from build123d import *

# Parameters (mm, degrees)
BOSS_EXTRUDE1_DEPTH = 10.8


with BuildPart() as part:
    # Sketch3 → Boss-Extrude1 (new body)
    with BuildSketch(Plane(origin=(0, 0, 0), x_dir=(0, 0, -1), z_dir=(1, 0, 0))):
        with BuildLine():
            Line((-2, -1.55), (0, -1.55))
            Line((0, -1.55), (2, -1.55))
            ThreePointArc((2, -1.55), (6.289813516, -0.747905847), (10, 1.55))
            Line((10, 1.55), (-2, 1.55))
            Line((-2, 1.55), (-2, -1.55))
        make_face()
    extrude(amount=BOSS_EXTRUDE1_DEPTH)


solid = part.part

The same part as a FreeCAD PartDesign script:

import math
import FreeCAD as App
import Part
import Sketcher

V = App.Vector

doc = App.newDocument("Part")
body = doc.addObject("PartDesign::Body", "Body")

# Sketch on YZ plane
sketch1 = body.newObject("Sketcher::SketchObject", "Sketch")
sketch1.AttachmentSupport = (doc.getObject("YZ_Plane"), [""])
sketch1.MapMode = "FlatFace"
sketch1.addGeometry(Part.LineSegment(V(-1.6, 2, 0), V(-1.6, -2, 0)), False)
sketch1.addGeometry(Part.ArcOfCircle(Part.Circle(V(10.3, -2, 0), V(0, 0, 1), 11.9), math.radians(180), math.radians(222)), False)
sketch1.addGeometry(Part.LineSegment(V(1.6, -10, 0), V(1.6, 2, 0)), False)
sketch1.addGeometry(Part.LineSegment(V(1.6, 2, 0), V(-1.6, 2, 0)), False)
sketch1.addConstraint(Sketcher.Constraint("Tangent", 0, 2, 1, 1))
sketch1.addConstraint(Sketcher.Constraint("Coincident", 1, 2, 2, 1))
sketch1.addConstraint(Sketcher.Constraint("Coincident", 2, 2, 3, 1))
sketch1.addConstraint(Sketcher.Constraint("Coincident", 3, 2, 0, 1))
sketch1.addConstraint(Sketcher.Constraint("Vertical", 0))
sketch1.addConstraint(Sketcher.Constraint("Vertical", 2))
sketch1.addConstraint(Sketcher.Constraint("Horizontal", 3))
sketch1.addConstraint(Sketcher.Constraint("Symmetric", 0, 2, 2, 2, -1, 1))
sketch1.addConstraint(Sketcher.Constraint("DistanceY", 0, 2, 0, 1, 4.0))
sketch1.addConstraint(Sketcher.Constraint("DistanceY", 2, 1, 2, 2, 12.0))
sketch1.addConstraint(Sketcher.Constraint("DistanceX", 3, 2, 3, 1, 3.1))
pad1 = body.newObject("PartDesign::Pad", "Pad")
pad1.Profile = sketch1
pad1.Length = 10.8

doc.recompute()
